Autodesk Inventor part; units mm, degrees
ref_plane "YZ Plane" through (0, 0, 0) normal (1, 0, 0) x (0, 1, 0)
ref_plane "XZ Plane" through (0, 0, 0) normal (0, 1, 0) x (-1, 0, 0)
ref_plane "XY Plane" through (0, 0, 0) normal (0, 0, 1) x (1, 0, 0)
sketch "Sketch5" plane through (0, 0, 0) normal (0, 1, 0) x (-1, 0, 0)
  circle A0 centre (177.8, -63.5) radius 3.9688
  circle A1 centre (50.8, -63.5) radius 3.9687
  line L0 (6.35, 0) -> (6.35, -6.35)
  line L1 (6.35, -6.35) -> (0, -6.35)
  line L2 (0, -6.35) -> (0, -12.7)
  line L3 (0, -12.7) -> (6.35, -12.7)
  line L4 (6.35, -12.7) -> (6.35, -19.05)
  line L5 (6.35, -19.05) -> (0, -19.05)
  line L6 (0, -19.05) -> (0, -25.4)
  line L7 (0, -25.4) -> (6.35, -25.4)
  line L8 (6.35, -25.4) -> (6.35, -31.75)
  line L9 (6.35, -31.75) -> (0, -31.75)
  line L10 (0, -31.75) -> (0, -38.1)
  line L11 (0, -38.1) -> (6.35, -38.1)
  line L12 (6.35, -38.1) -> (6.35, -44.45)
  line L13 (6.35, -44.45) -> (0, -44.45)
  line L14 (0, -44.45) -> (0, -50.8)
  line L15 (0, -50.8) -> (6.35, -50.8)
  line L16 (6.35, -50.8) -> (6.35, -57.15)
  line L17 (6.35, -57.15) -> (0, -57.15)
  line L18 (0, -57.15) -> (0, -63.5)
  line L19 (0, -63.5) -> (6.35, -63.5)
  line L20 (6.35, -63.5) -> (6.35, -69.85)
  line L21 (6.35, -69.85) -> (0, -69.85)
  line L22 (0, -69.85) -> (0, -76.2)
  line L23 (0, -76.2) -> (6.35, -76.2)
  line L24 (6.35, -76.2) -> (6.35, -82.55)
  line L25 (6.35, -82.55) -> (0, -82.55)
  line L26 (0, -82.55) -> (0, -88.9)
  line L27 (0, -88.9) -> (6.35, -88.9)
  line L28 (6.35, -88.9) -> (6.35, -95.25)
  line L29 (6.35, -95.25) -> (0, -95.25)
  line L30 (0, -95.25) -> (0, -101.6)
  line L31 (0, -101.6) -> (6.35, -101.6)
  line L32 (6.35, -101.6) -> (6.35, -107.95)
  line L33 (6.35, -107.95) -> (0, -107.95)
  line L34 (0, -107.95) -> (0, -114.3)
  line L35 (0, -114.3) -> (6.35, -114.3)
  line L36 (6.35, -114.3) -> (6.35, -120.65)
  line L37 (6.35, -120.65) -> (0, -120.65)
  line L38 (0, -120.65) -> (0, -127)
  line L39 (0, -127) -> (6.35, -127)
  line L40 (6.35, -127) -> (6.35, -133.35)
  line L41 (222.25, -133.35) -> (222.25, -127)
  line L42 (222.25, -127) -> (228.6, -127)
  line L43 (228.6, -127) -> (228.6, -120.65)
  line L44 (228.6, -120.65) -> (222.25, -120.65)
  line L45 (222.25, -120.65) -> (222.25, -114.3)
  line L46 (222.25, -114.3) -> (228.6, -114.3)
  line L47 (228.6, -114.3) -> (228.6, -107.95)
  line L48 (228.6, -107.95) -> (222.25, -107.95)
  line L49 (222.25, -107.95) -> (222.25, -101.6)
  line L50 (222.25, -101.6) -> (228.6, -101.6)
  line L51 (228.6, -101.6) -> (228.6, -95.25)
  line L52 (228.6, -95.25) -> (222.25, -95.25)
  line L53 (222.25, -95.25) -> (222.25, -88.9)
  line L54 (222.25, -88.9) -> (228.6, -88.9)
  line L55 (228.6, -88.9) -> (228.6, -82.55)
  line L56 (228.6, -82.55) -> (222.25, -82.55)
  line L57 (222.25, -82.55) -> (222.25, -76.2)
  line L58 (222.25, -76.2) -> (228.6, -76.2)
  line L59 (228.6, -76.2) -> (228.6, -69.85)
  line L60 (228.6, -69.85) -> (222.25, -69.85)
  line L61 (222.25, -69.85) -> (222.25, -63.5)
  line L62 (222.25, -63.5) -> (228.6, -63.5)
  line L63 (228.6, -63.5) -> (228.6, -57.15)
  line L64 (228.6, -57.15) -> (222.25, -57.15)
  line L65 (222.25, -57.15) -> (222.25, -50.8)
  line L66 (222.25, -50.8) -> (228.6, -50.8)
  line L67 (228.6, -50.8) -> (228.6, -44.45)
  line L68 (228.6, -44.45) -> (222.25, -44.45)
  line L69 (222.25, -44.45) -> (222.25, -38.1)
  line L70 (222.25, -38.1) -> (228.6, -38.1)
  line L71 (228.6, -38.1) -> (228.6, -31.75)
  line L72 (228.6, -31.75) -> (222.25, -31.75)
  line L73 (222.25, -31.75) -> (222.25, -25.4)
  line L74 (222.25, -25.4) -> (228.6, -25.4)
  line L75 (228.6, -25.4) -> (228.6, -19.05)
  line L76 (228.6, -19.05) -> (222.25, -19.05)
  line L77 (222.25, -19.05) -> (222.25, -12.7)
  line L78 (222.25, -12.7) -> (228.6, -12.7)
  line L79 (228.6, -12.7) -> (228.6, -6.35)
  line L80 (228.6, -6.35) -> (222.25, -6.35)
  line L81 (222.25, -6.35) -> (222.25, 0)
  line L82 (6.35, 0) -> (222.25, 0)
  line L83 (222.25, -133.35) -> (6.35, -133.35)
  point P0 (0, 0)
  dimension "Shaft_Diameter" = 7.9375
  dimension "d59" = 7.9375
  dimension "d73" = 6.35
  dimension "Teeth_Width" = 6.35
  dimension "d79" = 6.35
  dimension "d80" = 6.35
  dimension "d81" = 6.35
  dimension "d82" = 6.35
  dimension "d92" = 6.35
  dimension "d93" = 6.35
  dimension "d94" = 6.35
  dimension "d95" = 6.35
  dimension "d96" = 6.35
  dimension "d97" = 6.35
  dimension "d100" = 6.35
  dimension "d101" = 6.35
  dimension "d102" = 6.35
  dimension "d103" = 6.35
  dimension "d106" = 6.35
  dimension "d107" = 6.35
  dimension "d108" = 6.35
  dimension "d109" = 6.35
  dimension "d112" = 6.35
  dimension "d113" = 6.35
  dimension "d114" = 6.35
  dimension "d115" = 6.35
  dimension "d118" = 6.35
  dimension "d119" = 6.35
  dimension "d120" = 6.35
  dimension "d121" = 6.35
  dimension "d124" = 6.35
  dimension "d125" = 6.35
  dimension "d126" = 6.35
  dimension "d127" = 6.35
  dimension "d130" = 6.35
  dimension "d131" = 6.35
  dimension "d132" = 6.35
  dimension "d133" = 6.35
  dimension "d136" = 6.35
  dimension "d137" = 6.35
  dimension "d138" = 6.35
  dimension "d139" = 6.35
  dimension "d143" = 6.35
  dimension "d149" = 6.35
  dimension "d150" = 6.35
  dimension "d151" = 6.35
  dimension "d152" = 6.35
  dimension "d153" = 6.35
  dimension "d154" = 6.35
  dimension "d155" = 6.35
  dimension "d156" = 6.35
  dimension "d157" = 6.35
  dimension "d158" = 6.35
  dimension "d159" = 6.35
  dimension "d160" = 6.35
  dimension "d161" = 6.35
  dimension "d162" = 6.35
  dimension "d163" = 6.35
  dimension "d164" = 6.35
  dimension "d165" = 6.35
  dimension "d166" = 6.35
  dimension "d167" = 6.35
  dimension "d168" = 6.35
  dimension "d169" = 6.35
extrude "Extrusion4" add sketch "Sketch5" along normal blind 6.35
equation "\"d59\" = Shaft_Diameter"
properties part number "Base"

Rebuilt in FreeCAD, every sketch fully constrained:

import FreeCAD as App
import Part
import Sketcher
from FreeCAD import Vector
Q = App.Units.Quantity


def add_polygon(sketch, points):
    """Adds a closed chain of lines whose ends are joined by coincident constraints."""
    first, n = sketch.GeometryCount, len(points)
    for a, b in zip(points, points[1:] + points[:1]):
        sketch.addGeometry(Part.LineSegment(App.Vector(*a, 0), App.Vector(*b, 0)), False)
    for i in range(n):
        sketch.addConstraint(Sketcher.Constraint("Coincident", first + i, 2, first + (i + 1) % n, 1))

doc = App.newDocument("Part")
body = doc.addObject("PartDesign::Body", "Body")

# Sketch on XZ plane
sketch1 = body.newObject("Sketcher::SketchObject", "Sketch")
sketch1.AttachmentSupport = (doc.getObject("XZ_Plane"), [""])
sketch1.MapMode = "FlatFace"
add_polygon(sketch1, [(-222.25, 0), (-6.35, 0), (-6.35, -6.35), (0, -6.35), (0, -12.7), (-6.35, -12.7), (-6.35, -19.05), (0, -19.05), (0, -25.4), (-6.35, -25.4), (-6.35, -31.75), (0, -31.75), (0, -38.1), (-6.35, -38.1), (-6.35, -44.45), (0, -44.45), (0, -50.8), (-6.35, -50.8), (-6.35, -57.15), (0, -57.15), (0, -63.5), (-6.35, -63.5), (-6.35, -69.85), (0, -69.85), (0, -76.2), (-6.35, -76.2), (-6.35, -82.55), (0, -82.55), (0, -88.9), (-6.35, -88.9), (-6.35, -95.25), (0, -95.25), (0, -101.6), (-6.35, -101.6), (-6.35, -107.95), (0, -107.95), (0, -114.3), (-6.35, -114.3), (-6.35, -120.65), (0, -120.65), (0, -127), (-6.35, -127), (-6.35, -133.35), (-222.25, -133.35), (-222.25, -127), (-228.6, -127), (-228.6, -120.65), (-222.25, -120.65), (-222.25, -114.3), (-228.6, -114.3), (-228.6, -107.95), (-222.25, -107.95), (-222.25, -101.6), (-228.6, -101.6), (-228.6, -95.25), (-222.25, -95.25), (-222.25, -88.9), (-228.6, -88.9), (-228.6, -82.55), (-222.25, -82.55), (-222.25, -76.2), (-228.6, -76.2), (-228.6, -69.85), (-222.25, -69.85), (-222.25, -63.5), (-228.6, -63.5), (-228.6, -57.15), (-222.25, -57.15), (-222.25, -50.8), (-228.6, -50.8), (-228.6, -44.45), (-222.25, -44.45), (-222.25, -38.1), (-228.6, -38.1), (-228.6, -31.75), (-222.25, -31.75), (-222.25, -25.4), (-228.6, -25.4), (-228.6, -19.05), (-222.25, -19.05), (-222.25, -12.7), (-228.6, -12.7), (-228.6, -6.35), (-222.25, -6.35)])  # lines 0-83
sketch1.addGeometry(Part.Circle(Vector(-50.8, -63.5, 0), Vector(0, 0, 1), 3.9687), False)  # 84
sketch1.addGeometry(Part.Circle(Vector(-177.8, -63.5, 0), Vector(0, 0, 1), 3.9688), False)  # 85
sketch1.addConstraint([
    Sketcher.Constraint("Horizontal", 0),
    Sketcher.Constraint("Vertical", 1),
    Sketcher.Constraint("Horizontal", 2),
    Sketcher.Constraint("Vertical", 3),
    Sketcher.Constraint("Horizontal", 4),
    Sketcher.Constraint("Vertical", 5),
    Sketcher.Constraint("Horizontal", 6),
    Sketcher.Constraint("Vertical", 7),
    Sketcher.Constraint("Horizontal", 8),
    Sketcher.Constraint("Vertical", 9),
    Sketcher.Constraint("Horizontal", 10),
    Sketcher.Constraint("Vertical", 11),
    Sketcher.Constraint("Horizontal", 12),
    Sketcher.Constraint("Vertical", 13),
    Sketcher.Constraint("Horizontal", 14),
    Sketcher.Constraint("Vertical", 15),
    Sketcher.Constraint("Horizontal", 16),
    Sketcher.Constraint("Vertical", 17),
    Sketcher.Constraint("Horizontal", 18),
    Sketcher.Constraint("Vertical", 19),
    Sketcher.Constraint("Horizontal", 20),
    Sketcher.Constraint("Vertical", 21),
    Sketcher.Constraint("Horizontal", 22),
    Sketcher.Constraint("Vertical", 23),
    Sketcher.Constraint("Horizontal", 24),
    Sketcher.Constraint("Vertical", 25),
    Sketcher.Constraint("Horizontal", 26),
    Sketcher.Constraint("Vertical", 27),
    Sketcher.Constraint("Horizontal", 28),
    Sketcher.Constraint("Vertical", 29),
    Sketcher.Constraint("Horizontal", 30),
    Sketcher.Constraint("Vertical", 31),
    Sketcher.Constraint("Horizontal", 32),
    Sketcher.Constraint("Vertical", 33),
    Sketcher.Constraint("Horizontal", 34),
    Sketcher.Constraint("Vertical", 35),
    Sketcher.Constraint("Horizontal", 36),
    Sketcher.Constraint("Vertical", 37),
    Sketcher.Constraint("Horizontal", 38),
    Sketcher.Constraint("Vertical", 39),
    Sketcher.Constraint("Horizontal", 40),
    Sketcher.Constraint("Vertical", 41),
    Sketcher.Constraint("Horizontal", 42),
    Sketcher.Constraint("Vertical", 43),
    Sketcher.Constraint("Horizontal", 44),
    Sketcher.Constraint("Vertical", 45),
    Sketcher.Constraint("Horizontal", 46),
    Sketcher.Constraint("Vertical", 47),
    Sketcher.Constraint("Horizontal", 48),
    Sketcher.Constraint("Vertical", 49),
    Sketcher.Constraint("Horizontal", 50),
    Sketcher.Constraint("Vertical", 51),
    Sketcher.Constraint("Horizontal", 52),
    Sketcher.Constraint("Vertical", 53),
    Sketcher.Constraint("Horizontal", 54),
    Sketcher.Constraint("Vertical", 55),
    Sketcher.Constraint("Horizontal", 56),
    Sketcher.Constraint("Vertical", 57),
    Sketcher.Constraint("Horizontal", 58),
    Sketcher.Constraint("Vertical", 59),
    Sketcher.Constraint("Horizontal", 60),
    Sketcher.Constraint("Vertical", 61),
    Sketcher.Constraint("Horizontal", 62),
    Sketcher.Constraint("Vertical", 63),
    Sketcher.Constraint("Horizontal", 64),
    Sketcher.Constraint("Vertical", 65),
    Sketcher.Constraint("Horizontal", 66),
    Sketcher.Constraint("Vertical", 67),
    Sketcher.Constraint("Horizontal", 68),
    Sketcher.Constraint("Vertical", 69),
    Sketcher.Constraint("Horizontal", 70),
    Sketcher.Constraint("Vertical", 71),
    Sketcher.Constraint("Horizontal", 72),
    Sketcher.Constraint("Vertical", 73),
    Sketcher.Constraint("Horizontal", 74),
    Sketcher.Constraint("Vertical", 75),
    Sketcher.Constraint("Horizontal", 76),
    Sketcher.Constraint("Vertical", 77),
    Sketcher.Constraint("Horizontal", 78),
    Sketcher.Constraint("Vertical", 79),
    Sketcher.Constraint("Horizontal", 80),
    Sketcher.Constraint("Vertical", 81),
    Sketcher.Constraint("Horizontal", 82),
    Sketcher.Constraint("Vertical", 83),
    Sketcher.Constraint("Equal", 84, 85),
    Sketcher.Constraint("PointOnObject", 0, 2, -1),
    Sketcher.Constraint("PointOnObject", 2, 2, -2),
    Sketcher.Constraint("PointOnObject", 6, 2, -2),
    Sketcher.Constraint("PointOnObject", 10, 2, -2),
    Sketcher.Constraint("PointOnObject", 14, 2, -2),
    Sketcher.Constraint("PointOnObject", 18, 2, -2),
    Sketcher.Constraint("PointOnObject", 22, 2, -2),
    Sketcher.Constraint("PointOnObject", 26, 2, -2),
    Sketcher.Constraint("PointOnObject", 30, 2, -2),
    Sketcher.Constraint("PointOnObject", 34, 2, -2),
    Sketcher.Constraint("PointOnObject", 38, 2, -2),
    Sketcher.Constraint("Horizontal", 84, 3, 85, 3),
    Sketcher.Constraint("Horizontal", 85, 3, 19, 2),
    Sketcher.Constraint("Horizontal", 40, 2, 43, 2),
    Sketcher.Constraint("Horizontal", 38, 2, 45, 2),
    Sketcher.Constraint("Horizontal", 36, 2, 47, 2),
    Sketcher.Constraint("Horizontal", 34, 2, 49, 2),
    Sketcher.Constraint("Horizontal", 32, 2, 51, 2),
    Sketcher.Constraint("Horizontal", 30, 2, 53, 2),
    Sketcher.Constraint("Horizontal", 28, 2, 55, 2),
    Sketcher.Constraint("Horizontal", 26, 2, 57, 2),
    Sketcher.Constraint("Horizontal", 24, 2, 59, 2),
    Sketcher.Constraint("Horizontal", 22, 2, 61, 2),
    Sketcher.Constraint("Horizontal", 20, 2, 63, 2),
    Sketcher.Constraint("Horizontal", 18, 2, 65, 2),
    Sketcher.Constraint("Horizontal", 16, 2, 67, 2),
    Sketcher.Constraint("Horizontal", 14, 2, 69, 2),
    Sketcher.Constraint("Horizontal", 12, 2, 71, 2),
    Sketcher.Constraint("Horizontal", 10, 2, 73, 2),
    Sketcher.Constraint("Horizontal", 8, 2, 75, 2),
    Sketcher.Constraint("Horizontal", 6, 2, 77, 2),
    Sketcher.Constraint("Horizontal", 4, 2, 79, 2),
    Sketcher.Constraint("Horizontal", 2, 2, 81, 2),
    Sketcher.Constraint("Vertical", 1, 2, 4, 2),
    Sketcher.Constraint("Vertical", 5, 2, 8, 2),
    Sketcher.Constraint("Vertical", 9, 2, 12, 2),
    Sketcher.Constraint("Vertical", 13, 2, 16, 2),
    Sketcher.Constraint("Vertical", 17, 2, 20, 2),
    Sketcher.Constraint("Vertical", 21, 2, 24, 2),
    Sketcher.Constraint("Vertical", 25, 2, 28, 2),
    Sketcher.Constraint("Vertical", 29, 2, 32, 2),
    Sketcher.Constraint("Vertical", 33, 2, 36, 2),
    Sketcher.Constraint("Vertical", 37, 2, 40, 2),
    Sketcher.Constraint("Vertical", 43, 2, 46, 2),
    Sketcher.Constraint("Vertical", 45, 2, 48, 2),
    Sketcher.Constraint("Vertical", 47, 2, 50, 2),
    Sketcher.Constraint("Vertical", 49, 2, 52, 2),
    Sketcher.Constraint("Vertical", 51, 2, 54, 2),
    Sketcher.Constraint("Vertical", 53, 2, 56, 2),
    Sketcher.Constraint("Vertical", 55, 2, 58, 2),
    Sketcher.Constraint("Vertical", 57, 2, 60, 2),
    Sketcher.Constraint("Vertical", 59, 2, 62, 2),
    Sketcher.Constraint("Vertical", 61, 2, 64, 2),
    Sketcher.Constraint("Vertical", 63, 2, 66, 2),
    Sketcher.Constraint("Vertical", 65, 2, 68, 2),
    Sketcher.Constraint("Vertical", 67, 2, 70, 2),
    Sketcher.Constraint("Vertical", 69, 2, 72, 2),
    Sketcher.Constraint("Vertical", 71, 2, 74, 2),
    Sketcher.Constraint("Vertical", 73, 2, 76, 2),
    Sketcher.Constraint("Vertical", 75, 2, 78, 2),
    Sketcher.Constraint("Vertical", 77, 2, 80, 2),
    Sketcher.Constraint("Vertical", 79, 2, 82, 2),
    Sketcher.Constraint("Equal", 40, 44),
    Sketcher.Constraint("Equal", 82, 1),
    Sketcher.Constraint("Equal", 1, 3),
    Sketcher.Constraint("Equal", 3, 5),
    Sketcher.Constraint("Equal", 5, 7),
    Sketcher.Constraint("Equal", 7, 9),
    Sketcher.Constraint("Equal", 9, 11),
    Sketcher.Constraint("Equal", 11, 13),
    Sketcher.Constraint("Equal", 13, 15),
    Sketcher.Constraint("Equal", 15, 17),
    Sketcher.Constraint("Equal", 17, 19),
    Sketcher.Constraint("Equal", 19, 21),
    Sketcher.Constraint("Equal", 21, 23),
    Sketcher.Constraint("Equal", 23, 25),
    Sketcher.Constraint("Equal", 25, 27),
    Sketcher.Constraint("Equal", 27, 29),
    Sketcher.Constraint("Equal", 29, 31),
    Sketcher.Constraint("Equal", 31, 33),
    Sketcher.Constraint("Equal", 33, 35),
    Sketcher.Constraint("Equal", 35, 37),
    Sketcher.Constraint("Equal", 37, 39),
    Sketcher.Constraint("Equal", 39, 41),
    Sketcher.Constraint("Diameter", 84, Q("0.3125 in")),
    Sketcher.Constraint("DistanceX", 2, 1, 2, 2, Q("0.25 in")),
    Sketcher.Constraint("DistanceX", 0, 1, 0, 2, Q("8.5 in")),
    Sketcher.Constraint("DistanceX", 84, 3, -1, 1, Q("2 in")),
    Sketcher.Constraint("DistanceX", 85, 3, -1, 1, Q("7 in")),
])
pad1 = body.newObject("PartDesign::Pad", "Pad")
pad1.Profile = sketch1
pad1.Length = Q("0.25 in")
pad1.Reversed = True

doc.recompute()
